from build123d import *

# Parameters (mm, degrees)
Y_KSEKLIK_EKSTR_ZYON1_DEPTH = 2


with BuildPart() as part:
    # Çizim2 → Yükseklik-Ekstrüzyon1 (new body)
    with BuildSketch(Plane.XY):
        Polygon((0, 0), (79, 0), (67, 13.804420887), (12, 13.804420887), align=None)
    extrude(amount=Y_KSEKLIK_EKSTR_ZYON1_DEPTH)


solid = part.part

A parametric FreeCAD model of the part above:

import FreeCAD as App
import Part
import Sketcher
from FreeCAD import Vector
Q = App.Units.Quantity


def add_polygon(sketch, points):
    """Adds a closed chain of lines whose ends are joined by coincident constraints."""
    first, n = sketch.GeometryCount, len(points)
    for a, b in zip(points, points[1:] + points[:1]):
        sketch.addGeometry(Part.LineSegment(App.Vector(*a, 0), App.Vector(*b, 0)), False)
    for i in range(n):
        sketch.addConstraint(Sketcher.Constraint("Coincident", first + i, 2, first + (i + 1) % n, 1))

doc = App.newDocument("Part")
body = doc.addObject("PartDesign::Body", "Body")

# Sketch on XY plane
sketch1 = body.newObject("Sketcher::SketchObject", "Sketch")
sketch1.AttachmentSupport = (doc.getObject("XY_Plane"), [""])
sketch1.MapMode = "FlatFace"
add_polygon(sketch1, [(0, 0), (79, 0), (67, 14), (12, 14)])  # lines 0-3
sketch1.addConstraint([
    Sketcher.Constraint("Horizontal", 0),
    Sketcher.Constraint("Horizontal", 2),
    Sketcher.Constraint("Coincident", 3, 2, -1, 1),
    Sketcher.Constraint("Equal", 1, 3),
    Sketcher.Constraint("DistanceX", 0, 1, 0, 2, Q("79 mm")),
    Sketcher.Constraint("DistanceX", 2, 2, 2, 1, Q("55 mm")),
    Sketcher.Constraint("Angle", 1, Q("131 deg")),
])
pad1 = body.newObject("PartDesign::Pad", "Pad")
pad1.Profile = sketch1
pad1.Length = 2

doc.recompute()
